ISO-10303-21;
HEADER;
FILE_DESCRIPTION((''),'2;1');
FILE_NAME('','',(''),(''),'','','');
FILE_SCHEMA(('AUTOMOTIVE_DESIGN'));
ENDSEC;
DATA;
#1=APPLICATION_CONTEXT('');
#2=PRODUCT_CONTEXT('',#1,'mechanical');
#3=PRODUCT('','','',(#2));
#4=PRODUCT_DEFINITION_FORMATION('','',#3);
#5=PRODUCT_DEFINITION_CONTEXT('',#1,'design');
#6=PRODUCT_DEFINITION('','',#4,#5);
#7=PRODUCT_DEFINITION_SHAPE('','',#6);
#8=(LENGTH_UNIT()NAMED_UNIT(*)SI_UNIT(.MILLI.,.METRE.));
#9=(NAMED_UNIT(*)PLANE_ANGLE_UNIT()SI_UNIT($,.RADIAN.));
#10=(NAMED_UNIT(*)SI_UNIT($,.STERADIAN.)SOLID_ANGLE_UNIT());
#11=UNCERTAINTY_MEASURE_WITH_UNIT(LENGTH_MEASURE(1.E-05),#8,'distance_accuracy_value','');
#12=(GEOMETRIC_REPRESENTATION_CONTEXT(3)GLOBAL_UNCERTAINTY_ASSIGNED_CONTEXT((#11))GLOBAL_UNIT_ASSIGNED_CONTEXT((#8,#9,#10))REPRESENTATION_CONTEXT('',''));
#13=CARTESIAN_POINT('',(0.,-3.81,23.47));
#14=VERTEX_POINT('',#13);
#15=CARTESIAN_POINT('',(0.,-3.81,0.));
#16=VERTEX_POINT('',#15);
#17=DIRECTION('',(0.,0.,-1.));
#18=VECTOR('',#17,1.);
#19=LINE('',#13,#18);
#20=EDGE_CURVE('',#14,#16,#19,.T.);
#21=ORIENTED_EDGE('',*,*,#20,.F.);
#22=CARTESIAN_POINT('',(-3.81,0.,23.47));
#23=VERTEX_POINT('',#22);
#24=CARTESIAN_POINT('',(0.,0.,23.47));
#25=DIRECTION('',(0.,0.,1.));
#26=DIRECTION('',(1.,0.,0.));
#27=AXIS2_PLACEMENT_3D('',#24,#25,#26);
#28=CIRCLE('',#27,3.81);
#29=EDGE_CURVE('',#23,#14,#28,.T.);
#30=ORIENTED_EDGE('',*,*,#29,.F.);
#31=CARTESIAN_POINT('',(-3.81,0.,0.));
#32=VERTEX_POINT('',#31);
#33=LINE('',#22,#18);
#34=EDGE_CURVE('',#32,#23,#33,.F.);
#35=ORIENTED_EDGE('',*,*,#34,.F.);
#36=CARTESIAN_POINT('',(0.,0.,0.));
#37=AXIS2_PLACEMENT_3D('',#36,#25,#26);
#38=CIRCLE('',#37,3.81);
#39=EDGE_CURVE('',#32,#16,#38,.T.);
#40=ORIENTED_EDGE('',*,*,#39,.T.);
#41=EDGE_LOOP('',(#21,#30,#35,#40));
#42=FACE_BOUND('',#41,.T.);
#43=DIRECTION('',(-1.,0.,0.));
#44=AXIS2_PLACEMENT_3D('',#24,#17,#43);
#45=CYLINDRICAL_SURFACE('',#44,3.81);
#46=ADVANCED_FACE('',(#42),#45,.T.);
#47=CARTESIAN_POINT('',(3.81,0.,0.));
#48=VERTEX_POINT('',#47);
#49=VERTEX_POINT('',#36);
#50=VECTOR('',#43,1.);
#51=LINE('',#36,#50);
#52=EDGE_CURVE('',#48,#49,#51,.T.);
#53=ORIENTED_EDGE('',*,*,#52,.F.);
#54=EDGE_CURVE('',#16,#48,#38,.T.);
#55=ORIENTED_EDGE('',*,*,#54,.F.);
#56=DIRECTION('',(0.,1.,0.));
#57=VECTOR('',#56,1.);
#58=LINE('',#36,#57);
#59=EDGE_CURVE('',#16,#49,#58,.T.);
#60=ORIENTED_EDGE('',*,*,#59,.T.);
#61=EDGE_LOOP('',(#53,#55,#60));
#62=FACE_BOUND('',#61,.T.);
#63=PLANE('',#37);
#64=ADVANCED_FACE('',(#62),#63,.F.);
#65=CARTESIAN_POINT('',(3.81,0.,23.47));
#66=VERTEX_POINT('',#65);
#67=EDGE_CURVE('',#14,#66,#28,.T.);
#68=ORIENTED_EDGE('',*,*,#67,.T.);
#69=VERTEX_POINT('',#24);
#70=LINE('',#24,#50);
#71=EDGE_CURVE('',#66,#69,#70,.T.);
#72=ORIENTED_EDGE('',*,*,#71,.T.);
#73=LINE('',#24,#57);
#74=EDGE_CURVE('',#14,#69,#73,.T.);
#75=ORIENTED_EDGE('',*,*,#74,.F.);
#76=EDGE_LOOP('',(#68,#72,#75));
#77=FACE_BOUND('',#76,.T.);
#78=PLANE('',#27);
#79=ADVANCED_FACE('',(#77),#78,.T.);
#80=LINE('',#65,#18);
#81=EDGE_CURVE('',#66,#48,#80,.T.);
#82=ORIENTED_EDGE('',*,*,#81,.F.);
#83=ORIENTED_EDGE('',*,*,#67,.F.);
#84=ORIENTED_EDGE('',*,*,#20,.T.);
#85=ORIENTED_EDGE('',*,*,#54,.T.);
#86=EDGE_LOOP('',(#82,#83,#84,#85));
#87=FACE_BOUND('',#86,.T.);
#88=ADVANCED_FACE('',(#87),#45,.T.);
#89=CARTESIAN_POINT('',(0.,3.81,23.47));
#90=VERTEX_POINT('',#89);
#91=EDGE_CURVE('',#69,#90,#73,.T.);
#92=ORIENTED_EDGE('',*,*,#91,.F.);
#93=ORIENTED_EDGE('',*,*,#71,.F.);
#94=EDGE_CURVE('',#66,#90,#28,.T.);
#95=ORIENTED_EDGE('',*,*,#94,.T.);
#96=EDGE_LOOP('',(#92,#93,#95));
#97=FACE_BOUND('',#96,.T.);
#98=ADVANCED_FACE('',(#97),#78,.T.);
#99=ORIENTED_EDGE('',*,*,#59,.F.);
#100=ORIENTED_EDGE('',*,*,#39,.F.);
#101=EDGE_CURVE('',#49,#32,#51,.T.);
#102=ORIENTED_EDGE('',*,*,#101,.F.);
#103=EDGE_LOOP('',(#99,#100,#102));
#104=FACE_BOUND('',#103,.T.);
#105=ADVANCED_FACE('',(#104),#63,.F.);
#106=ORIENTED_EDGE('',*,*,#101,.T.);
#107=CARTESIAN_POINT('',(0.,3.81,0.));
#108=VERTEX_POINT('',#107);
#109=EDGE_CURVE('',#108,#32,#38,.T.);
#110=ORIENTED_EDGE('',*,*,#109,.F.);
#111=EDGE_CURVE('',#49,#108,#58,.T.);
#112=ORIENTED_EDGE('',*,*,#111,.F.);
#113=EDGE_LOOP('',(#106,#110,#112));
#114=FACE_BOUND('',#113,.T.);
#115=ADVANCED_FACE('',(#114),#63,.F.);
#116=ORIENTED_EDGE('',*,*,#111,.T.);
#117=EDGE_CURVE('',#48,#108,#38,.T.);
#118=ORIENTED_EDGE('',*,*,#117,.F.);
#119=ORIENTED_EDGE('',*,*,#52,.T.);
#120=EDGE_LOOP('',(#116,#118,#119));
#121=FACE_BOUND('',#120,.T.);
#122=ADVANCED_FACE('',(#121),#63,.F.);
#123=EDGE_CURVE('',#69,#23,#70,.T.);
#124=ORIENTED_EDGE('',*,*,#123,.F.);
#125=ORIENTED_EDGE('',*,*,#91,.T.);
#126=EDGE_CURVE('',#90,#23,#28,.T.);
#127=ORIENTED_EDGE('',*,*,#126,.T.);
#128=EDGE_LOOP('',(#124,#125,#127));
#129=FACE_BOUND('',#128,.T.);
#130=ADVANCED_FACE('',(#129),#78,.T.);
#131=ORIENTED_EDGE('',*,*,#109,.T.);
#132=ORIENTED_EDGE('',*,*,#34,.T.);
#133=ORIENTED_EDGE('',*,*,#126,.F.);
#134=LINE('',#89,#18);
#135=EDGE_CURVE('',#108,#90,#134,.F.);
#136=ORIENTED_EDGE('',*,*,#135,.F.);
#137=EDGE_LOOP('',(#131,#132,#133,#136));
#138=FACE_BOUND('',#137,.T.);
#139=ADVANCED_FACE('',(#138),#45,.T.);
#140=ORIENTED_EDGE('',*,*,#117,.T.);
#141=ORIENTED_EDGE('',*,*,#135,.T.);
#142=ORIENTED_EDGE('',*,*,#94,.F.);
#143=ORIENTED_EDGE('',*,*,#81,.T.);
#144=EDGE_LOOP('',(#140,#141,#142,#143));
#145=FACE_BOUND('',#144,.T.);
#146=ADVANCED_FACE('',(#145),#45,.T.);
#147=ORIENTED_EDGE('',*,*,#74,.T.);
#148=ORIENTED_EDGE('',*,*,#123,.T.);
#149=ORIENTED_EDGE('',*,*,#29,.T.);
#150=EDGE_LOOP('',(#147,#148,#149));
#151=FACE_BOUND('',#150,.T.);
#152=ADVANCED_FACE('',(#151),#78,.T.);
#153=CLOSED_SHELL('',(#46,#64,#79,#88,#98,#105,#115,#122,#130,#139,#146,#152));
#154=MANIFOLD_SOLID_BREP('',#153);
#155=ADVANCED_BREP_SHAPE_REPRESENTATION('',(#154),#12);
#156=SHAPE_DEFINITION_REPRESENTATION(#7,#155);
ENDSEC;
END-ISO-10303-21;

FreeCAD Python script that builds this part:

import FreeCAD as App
import Part
import Sketcher
from FreeCAD import Vector
Q = App.Units.Quantity

doc = App.newDocument("Part")
body = doc.addObject("PartDesign::Body", "Body")

# Sketch on XY plane
sketch1 = body.newObject("Sketcher::SketchObject", "Sketch")
sketch1.AttachmentSupport = (doc.getObject("XY_Plane"), [""])
sketch1.MapMode = "FlatFace"
sketch1.addGeometry(Part.Circle(Vector(0, 0, 0), Vector(0, 0, 1), 3.8), False)
sketch1.addConstraint([
    Sketcher.Constraint("Coincident", 0, 3, -1, 1),
    Sketcher.Constraint("Diameter", 0, Q("0.3 in")),
])
pad1 = body.newObject("PartDesign::Pad", "Pad")
pad1.Profile = sketch1
pad1.Length = 23.47

doc.recompute()
